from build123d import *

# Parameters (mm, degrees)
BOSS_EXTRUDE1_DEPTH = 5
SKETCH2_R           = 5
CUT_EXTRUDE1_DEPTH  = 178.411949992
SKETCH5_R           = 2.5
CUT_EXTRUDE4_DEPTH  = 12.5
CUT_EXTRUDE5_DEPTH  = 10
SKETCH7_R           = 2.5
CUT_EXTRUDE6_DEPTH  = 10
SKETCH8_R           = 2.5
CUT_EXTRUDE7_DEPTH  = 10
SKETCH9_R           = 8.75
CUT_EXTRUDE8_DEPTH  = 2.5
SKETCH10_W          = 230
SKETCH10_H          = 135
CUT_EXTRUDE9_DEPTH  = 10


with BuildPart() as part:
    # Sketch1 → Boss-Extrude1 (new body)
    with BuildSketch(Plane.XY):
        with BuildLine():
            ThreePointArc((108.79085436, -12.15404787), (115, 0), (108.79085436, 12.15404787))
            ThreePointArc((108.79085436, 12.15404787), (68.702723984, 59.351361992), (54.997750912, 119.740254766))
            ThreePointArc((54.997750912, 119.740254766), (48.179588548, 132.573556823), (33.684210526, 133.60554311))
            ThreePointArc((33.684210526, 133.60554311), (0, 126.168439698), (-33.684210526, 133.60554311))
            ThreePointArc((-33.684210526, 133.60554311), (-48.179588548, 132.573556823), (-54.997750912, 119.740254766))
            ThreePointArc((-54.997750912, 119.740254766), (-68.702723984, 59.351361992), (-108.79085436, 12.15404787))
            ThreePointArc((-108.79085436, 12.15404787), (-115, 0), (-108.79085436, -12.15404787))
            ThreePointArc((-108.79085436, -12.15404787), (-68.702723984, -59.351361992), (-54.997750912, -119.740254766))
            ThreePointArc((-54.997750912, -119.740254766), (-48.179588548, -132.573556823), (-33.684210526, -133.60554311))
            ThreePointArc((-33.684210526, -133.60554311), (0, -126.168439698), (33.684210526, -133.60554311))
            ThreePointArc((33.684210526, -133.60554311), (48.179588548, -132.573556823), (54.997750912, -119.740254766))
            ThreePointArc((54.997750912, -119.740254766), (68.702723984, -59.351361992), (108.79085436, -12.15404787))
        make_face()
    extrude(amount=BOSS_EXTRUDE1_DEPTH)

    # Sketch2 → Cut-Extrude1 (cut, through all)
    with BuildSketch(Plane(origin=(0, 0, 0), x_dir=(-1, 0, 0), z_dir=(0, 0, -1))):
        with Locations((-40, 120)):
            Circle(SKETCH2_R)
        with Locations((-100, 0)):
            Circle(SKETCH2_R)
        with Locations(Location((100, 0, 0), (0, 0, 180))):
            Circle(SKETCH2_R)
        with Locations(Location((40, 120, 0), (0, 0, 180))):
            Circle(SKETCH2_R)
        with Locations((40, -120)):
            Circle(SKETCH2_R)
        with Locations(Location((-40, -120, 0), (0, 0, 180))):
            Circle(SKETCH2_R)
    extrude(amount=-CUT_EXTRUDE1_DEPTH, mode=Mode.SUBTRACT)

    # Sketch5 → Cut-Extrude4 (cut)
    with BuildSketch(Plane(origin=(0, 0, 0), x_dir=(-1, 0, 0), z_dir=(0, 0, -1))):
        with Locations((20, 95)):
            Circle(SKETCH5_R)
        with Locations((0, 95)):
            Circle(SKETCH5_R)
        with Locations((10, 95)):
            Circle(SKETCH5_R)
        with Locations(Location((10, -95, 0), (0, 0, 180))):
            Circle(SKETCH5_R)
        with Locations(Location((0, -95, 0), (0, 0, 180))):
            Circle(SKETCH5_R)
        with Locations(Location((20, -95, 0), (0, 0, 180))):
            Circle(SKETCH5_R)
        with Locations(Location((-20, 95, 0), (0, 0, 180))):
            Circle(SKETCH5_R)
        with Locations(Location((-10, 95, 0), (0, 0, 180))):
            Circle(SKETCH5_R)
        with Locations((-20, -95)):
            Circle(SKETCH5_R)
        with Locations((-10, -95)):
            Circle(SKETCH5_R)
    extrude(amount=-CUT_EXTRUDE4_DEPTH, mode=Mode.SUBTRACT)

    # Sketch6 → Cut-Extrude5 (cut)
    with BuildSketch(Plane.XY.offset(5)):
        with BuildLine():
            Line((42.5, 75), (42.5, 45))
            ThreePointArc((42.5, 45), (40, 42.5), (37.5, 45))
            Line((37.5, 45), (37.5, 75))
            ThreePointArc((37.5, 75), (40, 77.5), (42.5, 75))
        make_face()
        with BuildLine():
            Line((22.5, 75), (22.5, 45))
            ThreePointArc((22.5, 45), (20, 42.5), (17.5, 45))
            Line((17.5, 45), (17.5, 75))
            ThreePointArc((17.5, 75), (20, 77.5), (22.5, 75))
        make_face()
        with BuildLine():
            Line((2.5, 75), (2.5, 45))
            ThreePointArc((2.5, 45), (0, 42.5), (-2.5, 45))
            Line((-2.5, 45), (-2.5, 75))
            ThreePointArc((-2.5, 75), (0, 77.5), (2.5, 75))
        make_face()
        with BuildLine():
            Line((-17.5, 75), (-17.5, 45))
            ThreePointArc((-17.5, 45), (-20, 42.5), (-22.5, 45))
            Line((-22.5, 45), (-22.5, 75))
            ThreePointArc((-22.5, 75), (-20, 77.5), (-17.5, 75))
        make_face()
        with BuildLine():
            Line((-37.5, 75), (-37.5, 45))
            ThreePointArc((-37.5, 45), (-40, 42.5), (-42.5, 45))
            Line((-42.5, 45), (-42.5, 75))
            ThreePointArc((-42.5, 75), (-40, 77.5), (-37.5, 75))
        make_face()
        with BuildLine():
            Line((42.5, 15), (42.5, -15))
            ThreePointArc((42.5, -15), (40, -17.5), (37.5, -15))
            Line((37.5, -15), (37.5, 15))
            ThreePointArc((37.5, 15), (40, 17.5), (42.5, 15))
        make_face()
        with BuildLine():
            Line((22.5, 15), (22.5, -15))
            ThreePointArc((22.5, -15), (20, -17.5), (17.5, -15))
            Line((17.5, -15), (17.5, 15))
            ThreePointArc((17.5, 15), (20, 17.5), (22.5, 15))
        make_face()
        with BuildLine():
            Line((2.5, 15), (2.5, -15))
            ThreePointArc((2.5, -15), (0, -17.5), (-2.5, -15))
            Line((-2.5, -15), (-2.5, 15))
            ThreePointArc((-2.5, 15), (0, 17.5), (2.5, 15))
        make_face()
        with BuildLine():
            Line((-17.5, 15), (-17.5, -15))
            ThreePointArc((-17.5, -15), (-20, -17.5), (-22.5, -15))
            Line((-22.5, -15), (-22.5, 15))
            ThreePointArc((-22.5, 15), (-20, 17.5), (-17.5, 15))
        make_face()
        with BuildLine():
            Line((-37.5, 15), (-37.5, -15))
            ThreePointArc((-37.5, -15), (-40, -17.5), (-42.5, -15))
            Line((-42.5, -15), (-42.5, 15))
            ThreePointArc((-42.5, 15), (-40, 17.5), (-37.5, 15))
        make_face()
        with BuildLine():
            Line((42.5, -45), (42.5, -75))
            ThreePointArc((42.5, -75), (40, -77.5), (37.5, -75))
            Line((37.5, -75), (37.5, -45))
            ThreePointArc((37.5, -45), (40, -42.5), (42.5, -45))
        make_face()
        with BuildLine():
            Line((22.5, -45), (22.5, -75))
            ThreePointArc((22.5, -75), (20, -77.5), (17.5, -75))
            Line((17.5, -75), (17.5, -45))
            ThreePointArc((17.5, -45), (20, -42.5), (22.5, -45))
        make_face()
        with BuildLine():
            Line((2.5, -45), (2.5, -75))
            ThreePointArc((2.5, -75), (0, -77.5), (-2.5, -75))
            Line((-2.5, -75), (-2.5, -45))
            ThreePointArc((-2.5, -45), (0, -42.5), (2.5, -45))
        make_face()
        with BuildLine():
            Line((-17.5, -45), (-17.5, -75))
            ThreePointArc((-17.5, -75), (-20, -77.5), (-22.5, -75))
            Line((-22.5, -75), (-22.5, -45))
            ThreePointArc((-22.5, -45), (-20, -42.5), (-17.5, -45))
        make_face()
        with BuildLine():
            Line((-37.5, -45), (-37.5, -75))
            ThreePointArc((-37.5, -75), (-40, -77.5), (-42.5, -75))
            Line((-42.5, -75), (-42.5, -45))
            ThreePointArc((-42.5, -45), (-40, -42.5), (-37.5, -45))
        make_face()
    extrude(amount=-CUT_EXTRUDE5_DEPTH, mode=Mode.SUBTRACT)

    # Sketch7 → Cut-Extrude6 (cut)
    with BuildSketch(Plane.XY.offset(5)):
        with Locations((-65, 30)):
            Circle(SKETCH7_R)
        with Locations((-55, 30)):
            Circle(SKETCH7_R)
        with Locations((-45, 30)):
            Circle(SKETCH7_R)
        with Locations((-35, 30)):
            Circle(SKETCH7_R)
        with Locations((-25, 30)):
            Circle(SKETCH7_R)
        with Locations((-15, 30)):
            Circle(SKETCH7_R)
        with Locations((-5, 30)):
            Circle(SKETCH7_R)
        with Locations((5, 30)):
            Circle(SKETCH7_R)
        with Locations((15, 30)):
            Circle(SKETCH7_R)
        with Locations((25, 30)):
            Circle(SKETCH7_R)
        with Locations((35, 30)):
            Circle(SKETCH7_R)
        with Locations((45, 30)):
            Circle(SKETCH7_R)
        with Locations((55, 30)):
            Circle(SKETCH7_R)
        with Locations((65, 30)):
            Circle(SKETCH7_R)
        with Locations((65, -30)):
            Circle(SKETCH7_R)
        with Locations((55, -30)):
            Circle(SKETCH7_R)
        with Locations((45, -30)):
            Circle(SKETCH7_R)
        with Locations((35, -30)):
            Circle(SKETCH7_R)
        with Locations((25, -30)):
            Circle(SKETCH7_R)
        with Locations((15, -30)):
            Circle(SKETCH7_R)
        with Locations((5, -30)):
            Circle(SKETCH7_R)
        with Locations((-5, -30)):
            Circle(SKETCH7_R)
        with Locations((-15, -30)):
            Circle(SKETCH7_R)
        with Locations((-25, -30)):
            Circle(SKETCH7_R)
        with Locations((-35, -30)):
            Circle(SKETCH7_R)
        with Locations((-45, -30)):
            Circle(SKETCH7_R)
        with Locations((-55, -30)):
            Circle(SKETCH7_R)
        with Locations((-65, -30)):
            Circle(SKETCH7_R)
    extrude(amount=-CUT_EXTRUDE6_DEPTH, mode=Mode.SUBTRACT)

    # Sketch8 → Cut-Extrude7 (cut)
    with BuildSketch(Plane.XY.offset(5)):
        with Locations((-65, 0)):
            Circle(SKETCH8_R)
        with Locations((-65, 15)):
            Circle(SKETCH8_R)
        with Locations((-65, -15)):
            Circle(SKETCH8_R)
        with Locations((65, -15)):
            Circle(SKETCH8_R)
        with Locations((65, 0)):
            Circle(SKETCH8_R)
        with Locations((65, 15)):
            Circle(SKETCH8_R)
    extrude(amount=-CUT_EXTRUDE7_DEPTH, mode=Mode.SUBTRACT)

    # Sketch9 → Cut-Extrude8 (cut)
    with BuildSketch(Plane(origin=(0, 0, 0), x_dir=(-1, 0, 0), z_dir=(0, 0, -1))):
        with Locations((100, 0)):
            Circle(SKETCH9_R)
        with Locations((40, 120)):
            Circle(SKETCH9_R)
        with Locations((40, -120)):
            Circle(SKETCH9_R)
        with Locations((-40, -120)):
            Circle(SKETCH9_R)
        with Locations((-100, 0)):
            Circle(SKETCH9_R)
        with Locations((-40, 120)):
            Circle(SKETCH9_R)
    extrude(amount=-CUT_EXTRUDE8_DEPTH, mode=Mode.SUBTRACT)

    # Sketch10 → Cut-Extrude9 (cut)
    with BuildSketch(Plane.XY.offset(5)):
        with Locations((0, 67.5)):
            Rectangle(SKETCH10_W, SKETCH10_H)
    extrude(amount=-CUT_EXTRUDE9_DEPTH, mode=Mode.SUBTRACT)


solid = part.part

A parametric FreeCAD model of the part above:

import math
import FreeCAD as App
import Part
import Sketcher

doc = App.newDocument("Part")
body = doc.addObject("PartDesign::Body", "Body")

# Sketch on XY plane
sketch1 = doc.addObject("Sketcher::SketchObject", "Sketch")
body.addObject(sketch1)
sketch1.AttachmentSupport = (doc.XY_Plane, [""])
sketch1.MapMode = "FlatFace"
sketch1.addGeometry([
    Part.ArcOfCircle(Part.Circle(App.Vector(100, 0, 0), App.Vector(0, 0, 1), 15), math.radians(-54), math.radians(54)),  # 0
    Part.ArcOfCircle(Part.Circle(App.Vector(185, 117, 0), App.Vector(0, 0, 1), 130), math.radians(179), math.radians(234)),  # 1
    Part.ArcOfCircle(Part.Circle(App.Vector(40, 120, 0), App.Vector(0, 0, 1), 15), math.radians(-1), math.radians(115)),  # 2
    Part.ArcOfCircle(Part.Circle(App.Vector(0, 206, 0), App.Vector(0, 0, 1), 80), math.radians(-115), math.radians(-65)),  # 3
    Part.ArcOfCircle(Part.Circle(App.Vector(-40, 120, 0), App.Vector(0, 0, 1), 15), math.radians(65), math.radians(181)),  # 4
    Part.ArcOfCircle(Part.Circle(App.Vector(-185, 117, 0), App.Vector(0, 0, 1), 130), math.radians(-54), math.radians(1)),  # 5
    Part.ArcOfCircle(Part.Circle(App.Vector(-100, 0, 0), App.Vector(0, 0, 1), 15), math.radians(126), math.radians(234)),  # 6
    Part.ArcOfCircle(Part.Circle(App.Vector(-185, -117, 0), App.Vector(0, 0, 1), 130), math.radians(-1), math.radians(54)),  # 7
    Part.ArcOfCircle(Part.Circle(App.Vector(-40, -120, 0), App.Vector(0, 0, 1), 15), math.radians(179), math.radians(295)),  # 8
    Part.ArcOfCircle(Part.Circle(App.Vector(0, -206, 0), App.Vector(0, 0, 1), 80), math.radians(65), math.radians(115)),  # 9
    Part.ArcOfCircle(Part.Circle(App.Vector(40, -120, 0), App.Vector(0, 0, 1), 15), math.radians(-115), math.radians(1)),  # 10
    Part.ArcOfCircle(Part.Circle(App.Vector(185, -117, 0), App.Vector(0, 0, 1), 130), math.radians(126), math.radians(181)),  # 11
], False)
sketch1.addConstraint([
    Sketcher.Constraint("Tangent", 0, 2, 1, 2),
    Sketcher.Constraint("Tangent", 1, 1, 2, 1),
    Sketcher.Constraint("Tangent", 2, 2, 3, 2),
    Sketcher.Constraint("Tangent", 3, 1, 4, 1),
    Sketcher.Constraint("Tangent", 4, 2, 5, 2),
    Sketcher.Constraint("Tangent", 5, 1, 6, 1),
    Sketcher.Constraint("Tangent", 6, 2, 7, 2),
    Sketcher.Constraint("Tangent", 7, 1, 8, 1),
    Sketcher.Constraint("Tangent", 8, 2, 9, 2),
    Sketcher.Constraint("Tangent", 9, 1, 10, 1),
    Sketcher.Constraint("Tangent", 10, 2, 11, 2),
    Sketcher.Constraint("Tangent", 11, 1, 0, 1),
    Sketcher.Constraint("Equal", 0, 2),
    Sketcher.Constraint("Equal", 2, 4),
    Sketcher.Constraint("Equal", 1, 5),
    Sketcher.Constraint("Equal", 4, 6),
    Sketcher.Constraint("Equal", 5, 7),
    Sketcher.Constraint("Equal", 6, 8),
    Sketcher.Constraint("Equal", 3, 9),
    Sketcher.Constraint("Equal", 8, 10),
    Sketcher.Constraint("Equal", 7, 11),
    Sketcher.Constraint("Symmetric", 0, 3, 6, 3, -1, 1),
    Sketcher.Constraint("Symmetric", 2, 3, 8, 3, -1, 1),
    Sketcher.Constraint("Symmetric", 4, 3, 10, 3, -1, 1),
    Sketcher.Constraint("Symmetric", 2, 3, 4, 3, -2),
    Sketcher.Constraint("PointOnObject", 0, 3, -1),
    Sketcher.Constraint("Radius", 0, 15.0),
    Sketcher.Constraint("Radius", 1, 130.0),
    Sketcher.Constraint("Radius", 3, 80.0),
    Sketcher.Constraint("DistanceX", -1, 1, 0, 3, 100.0),
    Sketcher.Constraint("DistanceX", -1, 1, 2, 3, 40.0),
    Sketcher.Constraint("DistanceY", -1, 1, 2, 3, 120.0),
])
pad1 = doc.addObject("PartDesign::Pad", "Pad")
body.addObject(pad1)
pad1.Profile = sketch1
pad1.Length = 5

# Sketch on XY plane
sketch2 = doc.addObject("Sketcher::SketchObject", "Sketch001")
body.addObject(sketch2)
sketch2.AttachmentSupport = (doc.XY_Plane, [""])
sketch2.MapMode = "FlatFace"
sketch2.addGeometry([
    Part.Circle(App.Vector(40, 120, 0), App.Vector(0, 0, 1), 5),  # 0
    Part.Circle(App.Vector(100, 0, 0), App.Vector(0, 0, 1), 5),  # 1
    Part.Circle(App.Vector(-100, 0, 0), App.Vector(0, 0, 1), 5),  # 2
    Part.Circle(App.Vector(-40, 120, 0), App.Vector(0, 0, 1), 5),  # 3
    Part.Circle(App.Vector(-40, -120, 0), App.Vector(0, 0, 1), 5),  # 4
    Part.Circle(App.Vector(40, -120, 0), App.Vector(0, 0, 1), 5),  # 5
], False)
sketch2.addConstraint([
    Sketcher.Constraint("Equal", 0, 1),
    Sketcher.Constraint("Equal", 1, 2),
    Sketcher.Constraint("Equal", 2, 3),
    Sketcher.Constraint("Equal", 3, 4),
    Sketcher.Constraint("Equal", 4, 5),
    Sketcher.Constraint("Symmetric", 1, 3, 2, 3, -1, 1),
    Sketcher.Constraint("Symmetric", 0, 3, 4, 3, -1, 1),
    Sketcher.Constraint("Symmetric", 3, 3, 5, 3, -1, 1),
    Sketcher.Constraint("Symmetric", 0, 3, 3, 3, -2),
    Sketcher.Constraint("PointOnObject", 1, 3, -1),
    Sketcher.Constraint("Diameter", 0, 10.0),
    Sketcher.Constraint("DistanceX", -1, 1, 0, 3, 40.0),
    Sketcher.Constraint("DistanceY", -1, 1, 0, 3, 120.0),
    Sketcher.Constraint("DistanceX", -1, 1, 1, 3, 100.0),
])
pocket1 = doc.addObject("PartDesign::Pocket", "Pocket")
body.addObject(pocket1)
pocket1.Profile = sketch2
pocket1.Type = "ThroughAll"
pocket1.Reversed = True

# Sketch on XY plane
sketch3 = doc.addObject("Sketcher::SketchObject", "Sketch002")
body.addObject(sketch3)
sketch3.AttachmentSupport = (doc.XY_Plane, [""])
sketch3.MapMode = "FlatFace"
sketch3.addGeometry([
    Part.Circle(App.Vector(-20, 95, 0), App.Vector(0, 0, 1), 2.5),  # 0
    Part.Circle(App.Vector(0, 95, 0), App.Vector(0, 0, 1), 2.5),  # 1
    Part.Circle(App.Vector(-10, 95, 0), App.Vector(0, 0, 1), 2.5),  # 2
    Part.Circle(App.Vector(-10, -95, 0), App.Vector(0, 0, 1), 2.5),  # 3
    Part.Circle(App.Vector(0, -95, 0), App.Vector(0, 0, 1), 2.5),  # 4
    Part.Circle(App.Vector(-20, -95, 0), App.Vector(0, 0, 1), 2.5),  # 5
    Part.Circle(App.Vector(20, 95, 0), App.Vector(0, 0, 1), 2.5),  # 6
    Part.Circle(App.Vector(10, 95, 0), App.Vector(0, 0, 1), 2.5),  # 7
    Part.Circle(App.Vector(20, -95, 0), App.Vector(0, 0, 1), 2.5),  # 8
    Part.Circle(App.Vector(10, -95, 0), App.Vector(0, 0, 1), 2.5),  # 9
], False)
sketch3.addConstraint([
    Sketcher.Constraint("Equal", 0, 1),
    Sketcher.Constraint("Equal", 1, 2),
    Sketcher.Constraint("Equal", 2, 3),
    Sketcher.Constraint("Equal", 3, 4),
    Sketcher.Constraint("Equal", 4, 5),
    Sketcher.Constraint("Equal", 5, 6),
    Sketcher.Constraint("Equal", 6, 7),
    Sketcher.Constraint("Equal", 7, 8),
    Sketcher.Constraint("Equal", 8, 9),
    Sketcher.Constraint("Symmetric", 1, 3, 4, 3, -1, 1),
    Sketcher.Constraint("Symmetric", 5, 3, 6, 3, -1, 1),
    Sketcher.Constraint("Symmetric", 3, 3, 7, 3, -1, 1),
    Sketcher.Constraint("Symmetric", 0, 3, 8, 3, -1, 1),
    Sketcher.Constraint("Symmetric", 2, 3, 9, 3, -1, 1),
    Sketcher.Constraint("Symmetric", 0, 3, 6, 3, -2),
    Sketcher.Constraint("Symmetric", 2, 3, 7, 3, -2),
    Sketcher.Constraint("PointOnObject", 1, 3, -2),
    Sketcher.Constraint("Horizontal", 0, 3, 1, 3),
    Sketcher.Constraint("Horizontal", 1, 3, 2, 3),
    Sketcher.Constraint("Diameter", 0, 5.0),
    Sketcher.Constraint("DistanceX", 0, 3, -1, 1, 20.0),
    Sketcher.Constraint("DistanceY", -1, 1, 0, 3, 95.0),
    Sketcher.Constraint("DistanceX", 2, 3, -1, 1, 10.0),
])
pocket2 = doc.addObject("PartDesign::Pocket", "Pocket001")
body.addObject(pocket2)
pocket2.Profile = sketch3
pocket2.Length = 12.5
pocket2.Reversed = True

# Sketch on XY plane
sketch4 = doc.addObject("Sketcher::SketchObject", "Sketch003")
body.addObject(sketch4)
sketch4.AttachmentSupport = (doc.XY_Plane, [""])
sketch4.MapMode = "FlatFace"
sketch4.AttachmentOffset = App.Placement(App.Vector(0, 0, 5), App.Rotation())
sketch4.addGeometry([
    Part.LineSegment(App.Vector(42.5, 45, 0), App.Vector(42.5, 75, 0)),  # 0
    Part.ArcOfCircle(Part.Circle(App.Vector(40, 75, 0), App.Vector(0, 0, 1), 2.5), math.radians(0), math.radians(180)),  # 1
    Part.LineSegment(App.Vector(37.5, 75, 0), App.Vector(37.5, 45, 0)),  # 2
    Part.ArcOfCircle(Part.Circle(App.Vector(40, 45, 0), App.Vector(0, 0, 1), 2.5), math.radians(180), math.radians(360)),  # 3
    Part.LineSegment(App.Vector(22.5, 45, 0), App.Vector(22.5, 75, 0)),  # 4
    Part.ArcOfCircle(Part.Circle(App.Vector(20, 75, 0), App.Vector(0, 0, 1), 2.5), math.radians(0), math.radians(180)),  # 5
    Part.LineSegment(App.Vector(17.5, 75, 0), App.Vector(17.5, 45, 0)),  # 6
    Part.ArcOfCircle(Part.Circle(App.Vector(20, 45, 0), App.Vector(0, 0, 1), 2.5), math.radians(180), math.radians(360)),  # 7
    Part.LineSegment(App.Vector(2.5, 45, 0), App.Vector(2.5, 75, 0)),  # 8
    Part.ArcOfCircle(Part.Circle(App.Vector(0, 75, 0), App.Vector(0, 0, 1), 2.5), math.radians(0), math.radians(180)),  # 9
    Part.LineSegment(App.Vector(-2.5, 75, 0), App.Vector(-2.5, 45, 0)),  # 10
    Part.ArcOfCircle(Part.Circle(App.Vector(0, 45, 0), App.Vector(0, 0, 1), 2.5), math.radians(180), math.radians(360)),  # 11
    Part.LineSegment(App.Vector(-17.5, 45, 0), App.Vector(-17.5, 75, 0)),  # 12
    Part.ArcOfCircle(Part.Circle(App.Vector(-20, 75, 0), App.Vector(0, 0, 1), 2.5), math.radians(0), math.radians(180)),  # 13
    Part.LineSegment(App.Vector(-22.5, 75, 0), App.Vector(-22.5, 45, 0)),  # 14
    Part.ArcOfCircle(Part.Circle(App.Vector(-20, 45, 0), App.Vector(0, 0, 1), 2.5), math.radians(180), math.radians(360)),  # 15
    Part.LineSegment(App.Vector(-37.5, 45, 0), App.Vector(-37.5, 75, 0)),  # 16
    Part.ArcOfCircle(Part.Circle(App.Vector(-40, 75, 0), App.Vector(0, 0, 1), 2.5), math.radians(0), math.radians(180)),  # 17
    Part.LineSegment(App.Vector(-42.5, 75, 0), App.Vector(-42.5, 45, 0)),  # 18
    Part.ArcOfCircle(Part.Circle(App.Vector(-40, 45, 0), App.Vector(0, 0, 1), 2.5), math.radians(180), math.radians(360)),  # 19
    Part.LineSegment(App.Vector(42.5, -15, 0), App.Vector(42.5, 15, 0)),  # 20
    Part.ArcOfCircle(Part.Circle(App.Vector(40, 15, 0), App.Vector(0, 0, 1), 2.5), math.radians(0), math.radians(180)),  # 21
    Part.LineSegment(App.Vector(37.5, 15, 0), App.Vector(37.5, -15, 0)),  # 22
    Part.ArcOfCircle(Part.Circle(App.Vector(40, -15, 0), App.Vector(0, 0, 1), 2.5), math.radians(180), math.radians(360)),  # 23
    Part.LineSegment(App.Vector(22.5, -15, 0), App.Vector(22.5, 15, 0)),  # 24
    Part.ArcOfCircle(Part.Circle(App.Vector(20, 15, 0), App.Vector(0, 0, 1), 2.5), math.radians(0), math.radians(180)),  # 25
    Part.LineSegment(App.Vector(17.5, 15, 0), App.Vector(17.5, -15, 0)),  # 26
    Part.ArcOfCircle(Part.Circle(App.Vector(20, -15, 0), App.Vector(0, 0, 1), 2.5), math.radians(180), math.radians(360)),  # 27
    Part.LineSegment(App.Vector(2.5, -15, 0), App.Vector(2.5, 15, 0)),  # 28
    Part.ArcOfCircle(Part.Circle(App.Vector(0, 15, 0), App.Vector(0, 0, 1), 2.5), math.radians(0), math.radians(180)),  # 29
    Part.LineSegment(App.Vector(-2.5, 15, 0), App.Vector(-2.5, -15, 0)),  # 30
    Part.ArcOfCircle(Part.Circle(App.Vector(0, -15, 0), App.Vector(0, 0, 1), 2.5), math.radians(180), math.radians(360)),  # 31
    Part.LineSegment(App.Vector(-17.5, -15, 0), App.Vector(-17.5, 15, 0)),  # 32
    Part.ArcOfCircle(Part.Circle(App.Vector(-20, 15, 0), App.Vector(0, 0, 1), 2.5), math.radians(0), math.radians(180)),  # 33
    Part.LineSegment(App.Vector(-22.5, 15, 0), App.Vector(-22.5, -15, 0)),  # 34
    Part.ArcOfCircle(Part.Circle(App.Vector(-20, -15, 0), App.Vector(0, 0, 1), 2.5), math.radians(180), math.radians(360)),  # 35
    Part.LineSegment(App.Vector(-37.5, -15, 0), App.Vector(-37.5, 15, 0)),  # 36
    Part.ArcOfCircle(Part.Circle(App.Vector(-40, 15, 0), App.Vector(0, 0, 1), 2.5), math.radians(0), math.radians(180)),  # 37
    Part.LineSegment(App.Vector(-42.5, 15, 0), App.Vector(-42.5, -15, 0)),  # 38
    Part.ArcOfCircle(Part.Circle(App.Vector(-40, -15, 0), App.Vector(0, 0, 1), 2.5), math.radians(180), math.radians(360)),  # 39
    Part.LineSegment(App.Vector(42.5, -75, 0), App.Vector(42.5, -45, 0)),  # 40
    Part.ArcOfCircle(Part.Circle(App.Vector(40, -45, 0), App.Vector(0, 0, 1), 2.5), math.radians(0), math.radians(180)),  # 41
    Part.LineSegment(App.Vector(37.5, -45, 0), App.Vector(37.5, -75, 0)),  # 42
    Part.ArcOfCircle(Part.Circle(App.Vector(40, -75, 0), App.Vector(0, 0, 1), 2.5), math.radians(180), math.radians(360)),  # 43
    Part.LineSegment(App.Vector(22.5, -75, 0), App.Vector(22.5, -45, 0)),  # 44
    Part.ArcOfCircle(Part.Circle(App.Vector(20, -45, 0), App.Vector(0, 0, 1), 2.5), math.radians(0), math.radians(180)),  # 45
    Part.LineSegment(App.Vector(17.5, -45, 0), App.Vector(17.5, -75, 0)),  # 46
    Part.ArcOfCircle(Part.Circle(App.Vector(20, -75, 0), App.Vector(0, 0, 1), 2.5), math.radians(180), math.radians(360)),  # 47
    Part.LineSegment(App.Vector(2.5, -75, 0), App.Vector(2.5, -45, 0)),  # 48
    Part.ArcOfCircle(Part.Circle(App.Vector(0, -45, 0), App.Vector(0, 0, 1), 2.5), math.radians(0), math.radians(180)),  # 49
    Part.LineSegment(App.Vector(-2.5, -45, 0), App.Vector(-2.5, -75, 0)),  # 50
    Part.ArcOfCircle(Part.Circle(App.Vector(0, -75, 0), App.Vector(0, 0, 1), 2.5), math.radians(180), math.radians(360)),  # 51
    Part.LineSegment(App.Vector(-17.5, -75, 0), App.Vector(-17.5, -45, 0)),  # 52
    Part.ArcOfCircle(Part.Circle(App.Vector(-20, -45, 0), App.Vector(0, 0, 1), 2.5), math.radians(0), math.radians(180)),  # 53
    Part.LineSegment(App.Vector(-22.5, -45, 0), App.Vector(-22.5, -75, 0)),  # 54
    Part.ArcOfCircle(Part.Circle(App.Vector(-20, -75, 0), App.Vector(0, 0, 1), 2.5), math.radians(180), math.radians(360)),  # 55
    Part.LineSegment(App.Vector(-37.5, -75, 0), App.Vector(-37.5, -45, 0)),  # 56
    Part.ArcOfCircle(Part.Circle(App.Vector(-40, -45, 0), App.Vector(0, 0, 1), 2.5), math.radians(0), math.radians(180)),  # 57
    Part.LineSegment(App.Vector(-42.5, -45, 0), App.Vector(-42.5, -75, 0)),  # 58
    Part.ArcOfCircle(Part.Circle(App.Vector(-40, -75, 0), App.Vector(0, 0, 1), 2.5), math.radians(180), math.radians(360)),  # 59
], False)
sketch4.addConstraint([
    Sketcher.Constraint("Tangent", 0, 2, 1, 1),
    Sketcher.Constraint("Tangent", 1, 2, 2, 1),
    Sketcher.Constraint("Tangent", 2, 2, 3, 1),
    Sketcher.Constraint("Tangent", 3, 2, 0, 1),
    Sketcher.Constraint("Tangent", 4, 2, 5, 1),
    Sketcher.Constraint("Tangent", 5, 2, 6, 1),
    Sketcher.Constraint("Tangent", 6, 2, 7, 1),
    Sketcher.Constraint("Tangent", 7, 2, 4, 1),
    Sketcher.Constraint("Tangent", 8, 2, 9, 1),
    Sketcher.Constraint("Tangent", 9, 2, 10, 1),
    Sketcher.Constraint("Tangent", 10, 2, 11, 1),
    Sketcher.Constraint("Tangent", 11, 2, 8, 1),
    Sketcher.Constraint("Tangent", 12, 2, 13, 1),
    Sketcher.Constraint("Tangent", 13, 2, 14, 1),
    Sketcher.Constraint("Tangent", 14, 2, 15, 1),
    Sketcher.Constraint("Tangent", 15, 2, 12, 1),
    Sketcher.Constraint("Tangent", 16, 2, 17, 1),
    Sketcher.Constraint("Tangent", 17, 2, 18, 1),
    Sketcher.Constraint("Tangent", 18, 2, 19, 1),
    Sketcher.Constraint("Tangent", 19, 2, 16, 1),
    Sketcher.Constraint("Tangent", 20, 2, 21, 1),
    Sketcher.Constraint("Tangent", 21, 2, 22, 1),
    Sketcher.Constraint("Tangent", 22, 2, 23, 1),
    Sketcher.Constraint("Tangent", 23, 2, 20, 1),
    Sketcher.Constraint("Tangent", 24, 2, 25, 1),
    Sketcher.Constraint("Tangent", 25, 2, 26, 1),
    Sketcher.Constraint("Tangent", 26, 2, 27, 1),
    Sketcher.Constraint("Tangent", 27, 2, 24, 1),
    Sketcher.Constraint("Tangent", 28, 2, 29, 1),
    Sketcher.Constraint("Tangent", 29, 2, 30, 1),
    Sketcher.Constraint("Tangent", 30, 2, 31, 1),
    Sketcher.Constraint("Tangent", 31, 2, 28, 1),
    Sketcher.Constraint("Tangent", 32, 2, 33, 1),
    Sketcher.Constraint("Tangent", 33, 2, 34, 1),
    Sketcher.Constraint("Tangent", 34, 2, 35, 1),
    Sketcher.Constraint("Tangent", 35, 2, 32, 1),
    Sketcher.Constraint("Tangent", 36, 2, 37, 1),
    Sketcher.Constraint("Tangent", 37, 2, 38, 1),
    Sketcher.Constraint("Tangent", 38, 2, 39, 1),
    Sketcher.Constraint("Tangent", 39, 2, 36, 1),
    Sketcher.Constraint("Tangent", 40, 2, 41, 1),
    Sketcher.Constraint("Tangent", 41, 2, 42, 1),
    Sketcher.Constraint("Tangent", 42, 2, 43, 1),
    Sketcher.Constraint("Tangent", 43, 2, 40, 1),
    Sketcher.Constraint("Tangent", 44, 2, 45, 1),
    Sketcher.Constraint("Tangent", 45, 2, 46, 1),
    Sketcher.Constraint("Tangent", 46, 2, 47, 1),
    Sketcher.Constraint("Tangent", 47, 2, 44, 1),
    Sketcher.Constraint("Tangent", 48, 2, 49, 1),
    Sketcher.Constraint("Tangent", 49, 2, 50, 1),
    Sketcher.Constraint("Tangent", 50, 2, 51, 1),
    Sketcher.Constraint("Tangent", 51, 2, 48, 1),
    Sketcher.Constraint("Tangent", 52, 2, 53, 1),
    Sketcher.Constraint("Tangent", 53, 2, 54, 1),
    Sketcher.Constraint("Tangent", 54, 2, 55, 1),
    Sketcher.Constraint("Tangent", 55, 2, 52, 1),
    Sketcher.Constraint("Tangent", 56, 2, 57, 1),
    Sketcher.Constraint("Tangent", 57, 2, 58, 1),
    Sketcher.Constraint("Tangent", 58, 2, 59, 1),
    Sketcher.Constraint("Tangent", 59, 2, 56, 1),
    Sketcher.Constraint("Vertical", 0),
    Sketcher.Constraint("Vertical", 2),
    Sketcher.Constraint("Vertical", 4),
    Sketcher.Constraint("Vertical", 6),
    Sketcher.Constraint("Vertical", 8),
    Sketcher.Constraint("Vertical", 10),
    Sketcher.Constraint("Vertical", 12),
    Sketcher.Constraint("Vertical", 14),
    Sketcher.Constraint("Vertical", 16),
    Sketcher.Constraint("Vertical", 18),
    Sketcher.Constraint("Vertical", 20),
    Sketcher.Constraint("Vertical", 22),
    Sketcher.Constraint("Vertical", 24),
    Sketcher.Constraint("Vertical", 26),
    Sketcher.Constraint("Vertical", 28),
    Sketcher.Constraint("Vertical", 30),
    Sketcher.Constraint("Vertical", 32),
    Sketcher.Constraint("Vertical", 34),
    Sketcher.Constraint("Vertical", 36),
    Sketcher.Constraint("Vertical", 38),
    Sketcher.Constraint("Vertical", 40),
    Sketcher.Constraint("Vertical", 42),
    Sketcher.Constraint("Vertical", 44),
    Sketcher.Constraint("Vertical", 46),
    Sketcher.Constraint("Vertical", 48),
    Sketcher.Constraint("Vertical", 50),
    Sketcher.Constraint("Vertical", 52),
    Sketcher.Constraint("Vertical", 54),
    Sketcher.Constraint("Vertical", 56),
    Sketcher.Constraint("Vertical", 58),
    Sketcher.Constraint("Equal", 3, 5),
    Sketcher.Constraint("Equal", 7, 9),
    Sketcher.Constraint("Equal", 11, 13),
    Sketcher.Constraint("Equal", 15, 17),
    Sketcher.Constraint("Equal", 19, 21),
    Sketcher.Constraint("Equal", 23, 25),
    Sketcher.Constraint("Equal", 27, 29),
    Sketcher.Constraint("Equal", 31, 33),
    Sketcher.Constraint("Equal", 35, 37),
    Sketcher.Constraint("Equal", 39, 41),
    Sketcher.Constraint("Equal", 43, 45),
    Sketcher.Constraint("Equal", 47, 49),
    Sketcher.Constraint("Equal", 51, 53),
    Sketcher.Constraint("Equal", 55, 57),
    Sketcher.Constraint("Symmetric", 29, 3, 31, 3, -1, 1),
    Sketcher.Constraint("Symmetric", 27, 3, 33, 3, -1, 1),
    Sketcher.Constraint("Symmetric", 23, 3, 37, 3, -1, 1),
    Sketcher.Constraint("Symmetric", 19, 3, 41, 3, -1, 1),
    Sketcher.Constraint("Symmetric", 15, 3, 45, 3, -1, 1),
    Sketcher.Constraint("Symmetric", 11, 3, 49, 3, -1, 1),
    Sketcher.Constraint("Symmetric", 7, 3, 53, 3, -1, 1),
    Sketcher.Constraint("Symmetric", 3, 3, 57, 3, -1, 1),
    Sketcher.Constraint("Symmetric", 5, 3, 13, 3, -2),
    Sketcher.Constraint("Symmetric", 1, 3, 17, 3, -2),
    Sketcher.Constraint("Symmetric", 9, 3, 51, 3, -1),
    Sketcher.Constraint("Horizontal", 1, 3, 5, 3),
    Sketcher.Constraint("Horizontal", 3, 3, 7, 3),
    Sketcher.Constraint("Horizontal", 5, 3, 9, 3),
    Sketcher.Constraint("Horizontal", 7, 3, 11, 3),
    Sketcher.Constraint("Horizontal", 11, 3, 15, 3),
    Sketcher.Constraint("Horizontal", 15, 3, 19, 3),
    Sketcher.Constraint("Horizontal", 21, 3, 25, 3),
    Sketcher.Constraint("Horizontal", 23, 3, 27, 3),
    Sketcher.Constraint("Horizontal", 25, 3, 29, 3),
    Sketcher.Constraint("Horizontal", 27, 3, 31, 3),
    Sketcher.Constraint("Horizontal", 31, 3, 35, 3),
    Sketcher.Constraint("Horizontal", 35, 3, 39, 3),
    Sketcher.Constraint("Horizontal", 43, 3, 47, 3),
    Sketcher.Constraint("Horizontal", 47, 3, 51, 3),
    Sketcher.Constraint("Horizontal", 51, 3, 55, 3),
    Sketcher.Constraint("Horizontal", 55, 3, 59, 3),
    Sketcher.Constraint("Vertical", 3, 3, 21, 3),
    Sketcher.Constraint("Vertical", 7, 3, 25, 3),
    Sketcher.Constraint("Equal", 18, 20),
    Sketcher.Constraint("Radius", 1, 2.5),
    Sketcher.Constraint("DistanceY", 0, 1, 0, 2, 30.0),
    Sketcher.Constraint("DistanceX", -1, 1, 1, 3, 40.0),
    Sketcher.Constraint("DistanceY", -1, 1, 1, 3, 75.0),
    Sketcher.Constraint("DistanceX", -1, 1, 5, 3, 20.0),
])
pocket3 = doc.addObject("PartDesign::Pocket", "Pocket002")
body.addObject(pocket3)
pocket3.Profile = sketch4
pocket3.Length = 10

# Sketch on XY plane
sketch5 = doc.addObject("Sketcher::SketchObject", "Sketch004")
body.addObject(sketch5)
sketch5.AttachmentSupport = (doc.XY_Plane, [""])
sketch5.MapMode = "FlatFace"
sketch5.AttachmentOffset = App.Placement(App.Vector(0, 0, 5), App.Rotation())
sketch5.addGeometry([
    Part.Circle(App.Vector(-65, 30, 0), App.Vector(0, 0, 1), 2.5),  # 0
    Part.Circle(App.Vector(-55, 30, 0), App.Vector(0, 0, 1), 2.5),  # 1
    Part.Circle(App.Vector(-45, 30, 0), App.Vector(0, 0, 1), 2.5),  # 2
    Part.Circle(App.Vector(-35, 30, 0), App.Vector(0, 0, 1), 2.5),  # 3
    Part.Circle(App.Vector(-25, 30, 0), App.Vector(0, 0, 1), 2.5),  # 4
    Part.Circle(App.Vector(-15, 30, 0), App.Vector(0, 0, 1), 2.5),  # 5
    Part.Circle(App.Vector(-5, 30, 0), App.Vector(0, 0, 1), 2.5),  # 6
    Part.Circle(App.Vector(5, 30, 0), App.Vector(0, 0, 1), 2.5),  # 7
    Part.Circle(App.Vector(15, 30, 0), App.Vector(0, 0, 1), 2.5),  # 8
    Part.Circle(App.Vector(25, 30, 0), App.Vector(0, 0, 1), 2.5),  # 9
    Part.Circle(App.Vector(35, 30, 0), App.Vector(0, 0, 1), 2.5),  # 10
    Part.Circle(App.Vector(45, 30, 0), App.Vector(0, 0, 1), 2.5),  # 11
    Part.Circle(App.Vector(55, 30, 0), App.Vector(0, 0, 1), 2.5),  # 12
    Part.Circle(App.Vector(65, 30, 0), App.Vector(0, 0, 1), 2.5),  # 13
    Part.Circle(App.Vector(65, -30, 0), App.Vector(0, 0, 1), 2.5),  # 14
    Part.Circle(App.Vector(55, -30, 0), App.Vector(0, 0, 1), 2.5),  # 15
    Part.Circle(App.Vector(45, -30, 0), App.Vector(0, 0, 1), 2.5),  # 16
    Part.Circle(App.Vector(35, -30, 0), App.Vector(0, 0, 1), 2.5),  # 17
    Part.Circle(App.Vector(25, -30, 0), App.Vector(0, 0, 1), 2.5),  # 18
    Part.Circle(App.Vector(15, -30, 0), App.Vector(0, 0, 1), 2.5),  # 19
    Part.Circle(App.Vector(5, -30, 0), App.Vector(0, 0, 1), 2.5),  # 20
    Part.Circle(App.Vector(-5, -30, 0), App.Vector(0, 0, 1), 2.5),  # 21
    Part.Circle(App.Vector(-15, -30, 0), App.Vector(0, 0, 1), 2.5),  # 22
    Part.Circle(App.Vector(-25, -30, 0), App.Vector(0, 0, 1), 2.5),  # 23
    Part.Circle(App.Vector(-35, -30, 0), App.Vector(0, 0, 1), 2.5),  # 24
    Part.Circle(App.Vector(-45, -30, 0), App.Vector(0, 0, 1), 2.5),  # 25
    Part.Circle(App.Vector(-55, -30, 0), App.Vector(0, 0, 1), 2.5),  # 26
    Part.Circle(App.Vector(-65, -30, 0), App.Vector(0, 0, 1), 2.5),  # 27
], False)
sketch5.addConstraint([
    Sketcher.Constraint("Equal", 0, 1),
    Sketcher.Constraint("Equal", 1, 2),
    Sketcher.Constraint("Equal", 2, 3),
    Sketcher.Constraint("Equal", 3, 4),
    Sketcher.Constraint("Equal", 4, 5),
    Sketcher.Constraint("Equal", 5, 6),
    Sketcher.Constraint("Equal", 6, 7),
    Sketcher.Constraint("Equal", 7, 8),
    Sketcher.Constraint("Equal", 8, 9),
    Sketcher.Constraint("Equal", 9, 10),
    Sketcher.Constraint("Equal", 10, 11),
    Sketcher.Constraint("Equal", 11, 12),
    Sketcher.Constraint("Equal", 12, 13),
    Sketcher.Constraint("Equal", 13, 14),
    Sketcher.Constraint("Equal", 14, 15),
    Sketcher.Constraint("Equal", 15, 16),
    Sketcher.Constraint("Equal", 16, 17),
    Sketcher.Constraint("Equal", 17, 18),
    Sketcher.Constraint("Equal", 18, 19),
    Sketcher.Constraint("Equal", 19, 20),
    Sketcher.Constraint("Equal", 20, 21),
    Sketcher.Constraint("Equal", 21, 22),
    Sketcher.Constraint("Equal", 22, 23),
    Sketcher.Constraint("Equal", 23, 24),
    Sketcher.Constraint("Equal", 24, 25),
    Sketcher.Constraint("Equal", 25, 26),
    Sketcher.Constraint("Equal", 26, 27),
    Sketcher.Constraint("Symmetric", 0, 3, 14, 3, -1, 1),
    Sketcher.Constraint("Symmetric", 1, 3, 15, 3, -1, 1),
    Sketcher.Constraint("Symmetric", 2, 3, 16, 3, -1, 1),
    Sketcher.Constraint("Symmetric", 3, 3, 17, 3, -1, 1),
    Sketcher.Constraint("Symmetric", 4, 3, 18, 3, -1, 1),
    Sketcher.Constraint("Symmetric", 5, 3, 19, 3, -1, 1),
    Sketcher.Constraint("Symmetric", 6, 3, 20, 3, -1, 1),
    Sketcher.Constraint("Symmetric", 7, 3, 21, 3, -1, 1),
    Sketcher.Constraint("Symmetric", 8, 3, 22, 3, -1, 1),
    Sketcher.Constraint("Symmetric", 9, 3, 23, 3, -1, 1),
    Sketcher.Constraint("Symmetric", 10, 3, 24, 3, -1, 1),
    Sketcher.Constraint("Symmetric", 11, 3, 25, 3, -1, 1),
    Sketcher.Constraint("Symmetric", 12, 3, 26, 3, -1, 1),
    Sketcher.Constraint("Symmetric", 13, 3, 27, 3, -1, 1),
    Sketcher.Constraint("Symmetric", 6, 3, 7, 3, -2),
    Sketcher.Constraint("Symmetric", 5, 3, 8, 3, -2),
    Sketcher.Constraint("Symmetric", 4, 3, 9, 3, -2),
    Sketcher.Constraint("Symmetric", 3, 3, 10, 3, -2),
    Sketcher.Constraint("Symmetric", 2, 3, 11, 3, -2),
    Sketcher.Constraint("Symmetric", 1, 3, 12, 3, -2),
    Sketcher.Constraint("Symmetric", 0, 3, 13, 3, -2),
    Sketcher.Constraint("Horizontal", 0, 3, 1, 3),
    Sketcher.Constraint("Horizontal", 1, 3, 2, 3),
    Sketcher.Constraint("Horizontal", 2, 3, 3, 3),
    Sketcher.Constraint("Horizontal", 3, 3, 4, 3),
    Sketcher.Constraint("Horizontal", 4, 3, 5, 3),
    Sketcher.Constraint("Horizontal", 5, 3, 6, 3),
    Sketcher.Constraint("Diameter", 0, 5.0),
    Sketcher.Constraint("DistanceX", 0, 3, -1, 1, 65.0),
    Sketcher.Constraint("DistanceY", -1, 1, 0, 3, 30.0),
    Sketcher.Constraint("DistanceX", 1, 3, -1, 1, 55.0),
    Sketcher.Constraint("DistanceX", 2, 3, -1, 1, 45.0),
    Sketcher.Constraint("DistanceX", 3, 3, -1, 1, 35.0),
    Sketcher.Constraint("DistanceX", 4, 3, -1, 1, 25.0),
    Sketcher.Constraint("DistanceX", 5, 3, -1, 1, 15.0),
    Sketcher.Constraint("DistanceX", 6, 3, -1, 1, 5.0),
])
pocket4 = doc.addObject("PartDesign::Pocket", "Pocket003")
body.addObject(pocket4)
pocket4.Profile = sketch5
pocket4.Length = 10

# Sketch on XY plane
sketch6 = doc.addObject("Sketcher::SketchObject", "Sketch005")
body.addObject(sketch6)
sketch6.AttachmentSupport = (doc.XY_Plane, [""])
sketch6.MapMode = "FlatFace"
sketch6.AttachmentOffset = App.Placement(App.Vector(0, 0, 5), App.Rotation())
sketch6.addGeometry([
    Part.Circle(App.Vector(-65, 0, 0), App.Vector(0, 0, 1), 2.5),  # 0
    Part.Circle(App.Vector(-65, 15, 0), App.Vector(0, 0, 1), 2.5),  # 1
    Part.Circle(App.Vector(-65, -15, 0), App.Vector(0, 0, 1), 2.5),  # 2
    Part.Circle(App.Vector(65, -15, 0), App.Vector(0, 0, 1), 2.5),  # 3
    Part.Circle(App.Vector(65, 0, 0), App.Vector(0, 0, 1), 2.5),  # 4
    Part.Circle(App.Vector(65, 15, 0), App.Vector(0, 0, 1), 2.5),  # 5
], False)
sketch6.addConstraint([
    Sketcher.Constraint("Equal", 0, 1),
    Sketcher.Constraint("Equal", 1, 2),
    Sketcher.Constraint("Equal", 2, 3),
    Sketcher.Constraint("Equal", 3, 4),
    Sketcher.Constraint("Equal", 4, 5),
    Sketcher.Constraint("Symmetric", 1, 3, 3, 3, -1, 1),
    Sketcher.Constraint("Symmetric", 0, 3, 4, 3, -1, 1),
    Sketcher.Constraint("Symmetric", 2, 3, 5, 3, -1, 1),
    Sketcher.Constraint("Symmetric", 2, 3, 3, 3, -2),
    Sketcher.Constraint("PointOnObject", 0, 3, -1),
    Sketcher.Constraint("Vertical", 0, 3, 1, 3),
    Sketcher.Constraint("Diameter", 0, 5.0),
    Sketcher.Constraint("DistanceX", 0, 3, -1, 1, 65.0),
    Sketcher.Constraint("DistanceY", -1, 1, 1, 3, 15.0),
])
pocket5 = doc.addObject("PartDesign::Pocket", "Pocket004")
body.addObject(pocket5)
pocket5.Profile = sketch6
pocket5.Length = 10

# Sketch on XY plane
sketch7 = doc.addObject("Sketcher::SketchObject", "Sketch006")
body.addObject(sketch7)
sketch7.AttachmentSupport = (doc.XY_Plane, [""])
sketch7.MapMode = "FlatFace"
sketch7.addGeometry([
    Part.Circle(App.Vector(-100, 0, 0), App.Vector(0, 0, 1), 9),  # 0
    Part.Circle(App.Vector(-40, 120, 0), App.Vector(0, 0, 1), 9),  # 1
    Part.Circle(App.Vector(-40, -120, 0), App.Vector(0, 0, 1), 9),  # 2
    Part.Circle(App.Vector(40, -120, 0), App.Vector(0, 0, 1), 9),  # 3
    Part.Circle(App.Vector(100, 0, 0), App.Vector(0, 0, 1), 9),  # 4
    Part.Circle(App.Vector(40, 120, 0), App.Vector(0, 0, 1), 9),  # 5
], False)
sketch7.addConstraint([
    Sketcher.Constraint("Equal", 0, 1),
    Sketcher.Constraint("Equal", 1, 2),
    Sketcher.Constraint("Equal", 2, 3),
    Sketcher.Constraint("Equal", 3, 4),
    Sketcher.Constraint("Equal", 4, 5),
    Sketcher.Constraint("Symmetric", 1, 3, 3, 3, -1, 1),
    Sketcher.Constraint("Symmetric", 0, 3, 4, 3, -1, 1),
    Sketcher.Constraint("Symmetric", 2, 3, 5, 3, -1, 1),
    Sketcher.Constraint("Symmetric", 2, 3, 3, 3, -2),
    Sketcher.Constraint("PointOnObject", 0, 3, -1),
    Sketcher.Constraint("Diameter", 0, 17.5),
    Sketcher.Constraint("DistanceX", 0, 3, -1, 1, 100.0),
    Sketcher.Constraint("DistanceX", 1, 3, -1, 1, 40.0),
    Sketcher.Constraint("DistanceY", -1, 1, 1, 3, 120.0),
])
pocket6 = doc.addObject("PartDesign::Pocket", "Pocket005")
body.addObject(pocket6)
pocket6.Profile = sketch7
pocket6.Length = 2.5
pocket6.Reversed = True

# Sketch on XY plane
sketch8 = doc.addObject("Sketcher::SketchObject", "Sketch007")
body.addObject(sketch8)
sketch8.AttachmentSupport = (doc.XY_Plane, [""])
sketch8.MapMode = "FlatFace"
sketch8.AttachmentOffset = App.Placement(App.Vector(0, 0, 5), App.Rotation())
sketch8.addGeometry([
    Part.LineSegment(App.Vector(-115, 135, 0), App.Vector(-115, 0, 0)),
    Part.LineSegment(App.Vector(-115, 0, 0), App.Vector(115, 0, 0)),
    Part.LineSegment(App.Vector(115, 0, 0), App.Vector(115, 135, 0)),
    Part.LineSegment(App.Vector(115, 135, 0), App.Vector(-115, 135, 0)),
], False)
sketch8.addConstraint([
    Sketcher.Constraint("Coincident", 0, 2, 1, 1),
    Sketcher.Constraint("Coincident", 1, 2, 2, 1),
    Sketcher.Constraint("Coincident", 2, 2, 3, 1),
    Sketcher.Constraint("Coincident", 3, 2, 0, 1),
    Sketcher.Constraint("Vertical", 0),
    Sketcher.Constraint("Horizontal", 1),
    Sketcher.Constraint("Vertical", 2),
    Sketcher.Constraint("Horizontal", 3),
    Sketcher.Constraint("Symmetric", 0, 2, 1, 2, -1, 1),
    Sketcher.Constraint("DistanceX", 1, 1, 1, 2, 230.0),
    Sketcher.Constraint("DistanceY", 0, 2, 0, 1, 135.0),
])
pocket7 = doc.addObject("PartDesign::Pocket", "Pocket006")
body.addObject(pocket7)
pocket7.Profile = sketch8
pocket7.Length = 10

doc.recompute()
